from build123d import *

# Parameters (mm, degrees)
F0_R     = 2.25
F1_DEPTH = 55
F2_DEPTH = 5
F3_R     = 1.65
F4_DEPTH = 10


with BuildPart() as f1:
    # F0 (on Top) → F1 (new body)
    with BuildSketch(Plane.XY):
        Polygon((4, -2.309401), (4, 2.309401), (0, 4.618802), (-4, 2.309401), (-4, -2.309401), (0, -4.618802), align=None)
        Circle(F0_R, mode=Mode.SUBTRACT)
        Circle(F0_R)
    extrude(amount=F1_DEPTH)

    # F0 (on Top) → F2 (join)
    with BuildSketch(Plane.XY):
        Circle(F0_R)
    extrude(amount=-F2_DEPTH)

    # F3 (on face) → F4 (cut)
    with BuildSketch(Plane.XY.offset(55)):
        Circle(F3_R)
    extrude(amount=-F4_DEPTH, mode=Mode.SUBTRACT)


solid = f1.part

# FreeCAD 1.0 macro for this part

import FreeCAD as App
import Part
import Sketcher
from FreeCAD import Vector
Q = App.Units.Quantity


def add_polygon(sketch, points):
    """Adds a closed chain of lines whose ends are joined by coincident constraints."""
    first, n = sketch.GeometryCount, len(points)
    for a, b in zip(points, points[1:] + points[:1]):
        sketch.addGeometry(Part.LineSegment(App.Vector(*a, 0), App.Vector(*b, 0)), False)
    for i in range(n):
        sketch.addConstraint(Sketcher.Constraint("Coincident", first + i, 2, first + (i + 1) % n, 1))

doc = App.newDocument("Part")
body = doc.addObject("PartDesign::Body", "Body")

sketch1 = body.newObject("Sketcher::SketchObject", "Sketch")
sketch1.AttachmentSupport = (doc.getObject("XY_Plane"), [""])
sketch1.MapMode = "FlatFace"
add_polygon(sketch1, [(4, -2.309401), (4, 2.309401), (0, 4.618802), (-4, 2.309401), (-4, -2.309401), (0, -4.618802)])
sketch1.addConstraint(Sketcher.Constraint("Vertical", 0))
sketch1.addConstraint(Sketcher.Constraint("Vertical", 3))
sketch1.addConstraint(Sketcher.Constraint("Symmetric", 0, 2, 3, 2, -1, 1))
sketch1.addConstraint(Sketcher.Constraint("Symmetric", 1, 2, 4, 2, -1, 1))
sketch1.addConstraint(Sketcher.Constraint("PointOnObject", 1, 2, -2))
sketch1.addConstraint(Sketcher.Constraint("Parallel", 2, 5))
sketch1.addConstraint(Sketcher.Constraint("Horizontal", 0, 2, 2, 2))
sketch1.addConstraint(Sketcher.Constraint("Angle", 1, Q("150.000001 deg")))
sketch1.addConstraint(Sketcher.Constraint("DistanceX", -1, 1, 0, 2, 4.0))
sketch1.addConstraint(Sketcher.Constraint("DistanceY", 0, 1, 0, 2, 4.618802))
pad1 = body.newObject("PartDesign::Pad", "Pad")
pad1.Profile = sketch1
pad1.Length = 55

sketch2 = body.newObject("Sketcher::SketchObject", "Sketch001")
sketch2.AttachmentSupport = (doc.getObject("XY_Plane"), [""])
sketch2.MapMode = "FlatFace"
sketch2.addGeometry(Part.Circle(Vector(0, 0, 0), Vector(0, 0, 1), 2.25), False)
sketch2.addConstraint(Sketcher.Constraint("Coincident", 0, 3, -1, 1))
sketch2.addConstraint(Sketcher.Constraint("Diameter", 0, 4.5))
pad2 = body.newObject("PartDesign::Pad", "Pad001")
pad2.Profile = sketch2
pad2.Length = 5
pad2.Reversed = True

sketch3 = body.newObject("Sketcher::SketchObject", "Sketch002")
sketch3.AttachmentSupport = (doc.getObject("XY_Plane"), [""])
sketch3.MapMode = "FlatFace"
sketch3.AttachmentOffset = App.Placement(Vector(0, 0, 55), App.Rotation())
sketch3.addGeometry(Part.Circle(Vector(0, 0, 0), Vector(0, 0, 1), 1.65), False)
sketch3.addConstraint(Sketcher.Constraint("Coincident", 0, 3, -1, 1))
sketch3.addConstraint(Sketcher.Constraint("Diameter", 0, 3.3))
pocket1 = body.newObject("PartDesign::Pocket", "Pocket")
pocket1.Profile = sketch3
pocket1.Length = 10

doc.recompute()
